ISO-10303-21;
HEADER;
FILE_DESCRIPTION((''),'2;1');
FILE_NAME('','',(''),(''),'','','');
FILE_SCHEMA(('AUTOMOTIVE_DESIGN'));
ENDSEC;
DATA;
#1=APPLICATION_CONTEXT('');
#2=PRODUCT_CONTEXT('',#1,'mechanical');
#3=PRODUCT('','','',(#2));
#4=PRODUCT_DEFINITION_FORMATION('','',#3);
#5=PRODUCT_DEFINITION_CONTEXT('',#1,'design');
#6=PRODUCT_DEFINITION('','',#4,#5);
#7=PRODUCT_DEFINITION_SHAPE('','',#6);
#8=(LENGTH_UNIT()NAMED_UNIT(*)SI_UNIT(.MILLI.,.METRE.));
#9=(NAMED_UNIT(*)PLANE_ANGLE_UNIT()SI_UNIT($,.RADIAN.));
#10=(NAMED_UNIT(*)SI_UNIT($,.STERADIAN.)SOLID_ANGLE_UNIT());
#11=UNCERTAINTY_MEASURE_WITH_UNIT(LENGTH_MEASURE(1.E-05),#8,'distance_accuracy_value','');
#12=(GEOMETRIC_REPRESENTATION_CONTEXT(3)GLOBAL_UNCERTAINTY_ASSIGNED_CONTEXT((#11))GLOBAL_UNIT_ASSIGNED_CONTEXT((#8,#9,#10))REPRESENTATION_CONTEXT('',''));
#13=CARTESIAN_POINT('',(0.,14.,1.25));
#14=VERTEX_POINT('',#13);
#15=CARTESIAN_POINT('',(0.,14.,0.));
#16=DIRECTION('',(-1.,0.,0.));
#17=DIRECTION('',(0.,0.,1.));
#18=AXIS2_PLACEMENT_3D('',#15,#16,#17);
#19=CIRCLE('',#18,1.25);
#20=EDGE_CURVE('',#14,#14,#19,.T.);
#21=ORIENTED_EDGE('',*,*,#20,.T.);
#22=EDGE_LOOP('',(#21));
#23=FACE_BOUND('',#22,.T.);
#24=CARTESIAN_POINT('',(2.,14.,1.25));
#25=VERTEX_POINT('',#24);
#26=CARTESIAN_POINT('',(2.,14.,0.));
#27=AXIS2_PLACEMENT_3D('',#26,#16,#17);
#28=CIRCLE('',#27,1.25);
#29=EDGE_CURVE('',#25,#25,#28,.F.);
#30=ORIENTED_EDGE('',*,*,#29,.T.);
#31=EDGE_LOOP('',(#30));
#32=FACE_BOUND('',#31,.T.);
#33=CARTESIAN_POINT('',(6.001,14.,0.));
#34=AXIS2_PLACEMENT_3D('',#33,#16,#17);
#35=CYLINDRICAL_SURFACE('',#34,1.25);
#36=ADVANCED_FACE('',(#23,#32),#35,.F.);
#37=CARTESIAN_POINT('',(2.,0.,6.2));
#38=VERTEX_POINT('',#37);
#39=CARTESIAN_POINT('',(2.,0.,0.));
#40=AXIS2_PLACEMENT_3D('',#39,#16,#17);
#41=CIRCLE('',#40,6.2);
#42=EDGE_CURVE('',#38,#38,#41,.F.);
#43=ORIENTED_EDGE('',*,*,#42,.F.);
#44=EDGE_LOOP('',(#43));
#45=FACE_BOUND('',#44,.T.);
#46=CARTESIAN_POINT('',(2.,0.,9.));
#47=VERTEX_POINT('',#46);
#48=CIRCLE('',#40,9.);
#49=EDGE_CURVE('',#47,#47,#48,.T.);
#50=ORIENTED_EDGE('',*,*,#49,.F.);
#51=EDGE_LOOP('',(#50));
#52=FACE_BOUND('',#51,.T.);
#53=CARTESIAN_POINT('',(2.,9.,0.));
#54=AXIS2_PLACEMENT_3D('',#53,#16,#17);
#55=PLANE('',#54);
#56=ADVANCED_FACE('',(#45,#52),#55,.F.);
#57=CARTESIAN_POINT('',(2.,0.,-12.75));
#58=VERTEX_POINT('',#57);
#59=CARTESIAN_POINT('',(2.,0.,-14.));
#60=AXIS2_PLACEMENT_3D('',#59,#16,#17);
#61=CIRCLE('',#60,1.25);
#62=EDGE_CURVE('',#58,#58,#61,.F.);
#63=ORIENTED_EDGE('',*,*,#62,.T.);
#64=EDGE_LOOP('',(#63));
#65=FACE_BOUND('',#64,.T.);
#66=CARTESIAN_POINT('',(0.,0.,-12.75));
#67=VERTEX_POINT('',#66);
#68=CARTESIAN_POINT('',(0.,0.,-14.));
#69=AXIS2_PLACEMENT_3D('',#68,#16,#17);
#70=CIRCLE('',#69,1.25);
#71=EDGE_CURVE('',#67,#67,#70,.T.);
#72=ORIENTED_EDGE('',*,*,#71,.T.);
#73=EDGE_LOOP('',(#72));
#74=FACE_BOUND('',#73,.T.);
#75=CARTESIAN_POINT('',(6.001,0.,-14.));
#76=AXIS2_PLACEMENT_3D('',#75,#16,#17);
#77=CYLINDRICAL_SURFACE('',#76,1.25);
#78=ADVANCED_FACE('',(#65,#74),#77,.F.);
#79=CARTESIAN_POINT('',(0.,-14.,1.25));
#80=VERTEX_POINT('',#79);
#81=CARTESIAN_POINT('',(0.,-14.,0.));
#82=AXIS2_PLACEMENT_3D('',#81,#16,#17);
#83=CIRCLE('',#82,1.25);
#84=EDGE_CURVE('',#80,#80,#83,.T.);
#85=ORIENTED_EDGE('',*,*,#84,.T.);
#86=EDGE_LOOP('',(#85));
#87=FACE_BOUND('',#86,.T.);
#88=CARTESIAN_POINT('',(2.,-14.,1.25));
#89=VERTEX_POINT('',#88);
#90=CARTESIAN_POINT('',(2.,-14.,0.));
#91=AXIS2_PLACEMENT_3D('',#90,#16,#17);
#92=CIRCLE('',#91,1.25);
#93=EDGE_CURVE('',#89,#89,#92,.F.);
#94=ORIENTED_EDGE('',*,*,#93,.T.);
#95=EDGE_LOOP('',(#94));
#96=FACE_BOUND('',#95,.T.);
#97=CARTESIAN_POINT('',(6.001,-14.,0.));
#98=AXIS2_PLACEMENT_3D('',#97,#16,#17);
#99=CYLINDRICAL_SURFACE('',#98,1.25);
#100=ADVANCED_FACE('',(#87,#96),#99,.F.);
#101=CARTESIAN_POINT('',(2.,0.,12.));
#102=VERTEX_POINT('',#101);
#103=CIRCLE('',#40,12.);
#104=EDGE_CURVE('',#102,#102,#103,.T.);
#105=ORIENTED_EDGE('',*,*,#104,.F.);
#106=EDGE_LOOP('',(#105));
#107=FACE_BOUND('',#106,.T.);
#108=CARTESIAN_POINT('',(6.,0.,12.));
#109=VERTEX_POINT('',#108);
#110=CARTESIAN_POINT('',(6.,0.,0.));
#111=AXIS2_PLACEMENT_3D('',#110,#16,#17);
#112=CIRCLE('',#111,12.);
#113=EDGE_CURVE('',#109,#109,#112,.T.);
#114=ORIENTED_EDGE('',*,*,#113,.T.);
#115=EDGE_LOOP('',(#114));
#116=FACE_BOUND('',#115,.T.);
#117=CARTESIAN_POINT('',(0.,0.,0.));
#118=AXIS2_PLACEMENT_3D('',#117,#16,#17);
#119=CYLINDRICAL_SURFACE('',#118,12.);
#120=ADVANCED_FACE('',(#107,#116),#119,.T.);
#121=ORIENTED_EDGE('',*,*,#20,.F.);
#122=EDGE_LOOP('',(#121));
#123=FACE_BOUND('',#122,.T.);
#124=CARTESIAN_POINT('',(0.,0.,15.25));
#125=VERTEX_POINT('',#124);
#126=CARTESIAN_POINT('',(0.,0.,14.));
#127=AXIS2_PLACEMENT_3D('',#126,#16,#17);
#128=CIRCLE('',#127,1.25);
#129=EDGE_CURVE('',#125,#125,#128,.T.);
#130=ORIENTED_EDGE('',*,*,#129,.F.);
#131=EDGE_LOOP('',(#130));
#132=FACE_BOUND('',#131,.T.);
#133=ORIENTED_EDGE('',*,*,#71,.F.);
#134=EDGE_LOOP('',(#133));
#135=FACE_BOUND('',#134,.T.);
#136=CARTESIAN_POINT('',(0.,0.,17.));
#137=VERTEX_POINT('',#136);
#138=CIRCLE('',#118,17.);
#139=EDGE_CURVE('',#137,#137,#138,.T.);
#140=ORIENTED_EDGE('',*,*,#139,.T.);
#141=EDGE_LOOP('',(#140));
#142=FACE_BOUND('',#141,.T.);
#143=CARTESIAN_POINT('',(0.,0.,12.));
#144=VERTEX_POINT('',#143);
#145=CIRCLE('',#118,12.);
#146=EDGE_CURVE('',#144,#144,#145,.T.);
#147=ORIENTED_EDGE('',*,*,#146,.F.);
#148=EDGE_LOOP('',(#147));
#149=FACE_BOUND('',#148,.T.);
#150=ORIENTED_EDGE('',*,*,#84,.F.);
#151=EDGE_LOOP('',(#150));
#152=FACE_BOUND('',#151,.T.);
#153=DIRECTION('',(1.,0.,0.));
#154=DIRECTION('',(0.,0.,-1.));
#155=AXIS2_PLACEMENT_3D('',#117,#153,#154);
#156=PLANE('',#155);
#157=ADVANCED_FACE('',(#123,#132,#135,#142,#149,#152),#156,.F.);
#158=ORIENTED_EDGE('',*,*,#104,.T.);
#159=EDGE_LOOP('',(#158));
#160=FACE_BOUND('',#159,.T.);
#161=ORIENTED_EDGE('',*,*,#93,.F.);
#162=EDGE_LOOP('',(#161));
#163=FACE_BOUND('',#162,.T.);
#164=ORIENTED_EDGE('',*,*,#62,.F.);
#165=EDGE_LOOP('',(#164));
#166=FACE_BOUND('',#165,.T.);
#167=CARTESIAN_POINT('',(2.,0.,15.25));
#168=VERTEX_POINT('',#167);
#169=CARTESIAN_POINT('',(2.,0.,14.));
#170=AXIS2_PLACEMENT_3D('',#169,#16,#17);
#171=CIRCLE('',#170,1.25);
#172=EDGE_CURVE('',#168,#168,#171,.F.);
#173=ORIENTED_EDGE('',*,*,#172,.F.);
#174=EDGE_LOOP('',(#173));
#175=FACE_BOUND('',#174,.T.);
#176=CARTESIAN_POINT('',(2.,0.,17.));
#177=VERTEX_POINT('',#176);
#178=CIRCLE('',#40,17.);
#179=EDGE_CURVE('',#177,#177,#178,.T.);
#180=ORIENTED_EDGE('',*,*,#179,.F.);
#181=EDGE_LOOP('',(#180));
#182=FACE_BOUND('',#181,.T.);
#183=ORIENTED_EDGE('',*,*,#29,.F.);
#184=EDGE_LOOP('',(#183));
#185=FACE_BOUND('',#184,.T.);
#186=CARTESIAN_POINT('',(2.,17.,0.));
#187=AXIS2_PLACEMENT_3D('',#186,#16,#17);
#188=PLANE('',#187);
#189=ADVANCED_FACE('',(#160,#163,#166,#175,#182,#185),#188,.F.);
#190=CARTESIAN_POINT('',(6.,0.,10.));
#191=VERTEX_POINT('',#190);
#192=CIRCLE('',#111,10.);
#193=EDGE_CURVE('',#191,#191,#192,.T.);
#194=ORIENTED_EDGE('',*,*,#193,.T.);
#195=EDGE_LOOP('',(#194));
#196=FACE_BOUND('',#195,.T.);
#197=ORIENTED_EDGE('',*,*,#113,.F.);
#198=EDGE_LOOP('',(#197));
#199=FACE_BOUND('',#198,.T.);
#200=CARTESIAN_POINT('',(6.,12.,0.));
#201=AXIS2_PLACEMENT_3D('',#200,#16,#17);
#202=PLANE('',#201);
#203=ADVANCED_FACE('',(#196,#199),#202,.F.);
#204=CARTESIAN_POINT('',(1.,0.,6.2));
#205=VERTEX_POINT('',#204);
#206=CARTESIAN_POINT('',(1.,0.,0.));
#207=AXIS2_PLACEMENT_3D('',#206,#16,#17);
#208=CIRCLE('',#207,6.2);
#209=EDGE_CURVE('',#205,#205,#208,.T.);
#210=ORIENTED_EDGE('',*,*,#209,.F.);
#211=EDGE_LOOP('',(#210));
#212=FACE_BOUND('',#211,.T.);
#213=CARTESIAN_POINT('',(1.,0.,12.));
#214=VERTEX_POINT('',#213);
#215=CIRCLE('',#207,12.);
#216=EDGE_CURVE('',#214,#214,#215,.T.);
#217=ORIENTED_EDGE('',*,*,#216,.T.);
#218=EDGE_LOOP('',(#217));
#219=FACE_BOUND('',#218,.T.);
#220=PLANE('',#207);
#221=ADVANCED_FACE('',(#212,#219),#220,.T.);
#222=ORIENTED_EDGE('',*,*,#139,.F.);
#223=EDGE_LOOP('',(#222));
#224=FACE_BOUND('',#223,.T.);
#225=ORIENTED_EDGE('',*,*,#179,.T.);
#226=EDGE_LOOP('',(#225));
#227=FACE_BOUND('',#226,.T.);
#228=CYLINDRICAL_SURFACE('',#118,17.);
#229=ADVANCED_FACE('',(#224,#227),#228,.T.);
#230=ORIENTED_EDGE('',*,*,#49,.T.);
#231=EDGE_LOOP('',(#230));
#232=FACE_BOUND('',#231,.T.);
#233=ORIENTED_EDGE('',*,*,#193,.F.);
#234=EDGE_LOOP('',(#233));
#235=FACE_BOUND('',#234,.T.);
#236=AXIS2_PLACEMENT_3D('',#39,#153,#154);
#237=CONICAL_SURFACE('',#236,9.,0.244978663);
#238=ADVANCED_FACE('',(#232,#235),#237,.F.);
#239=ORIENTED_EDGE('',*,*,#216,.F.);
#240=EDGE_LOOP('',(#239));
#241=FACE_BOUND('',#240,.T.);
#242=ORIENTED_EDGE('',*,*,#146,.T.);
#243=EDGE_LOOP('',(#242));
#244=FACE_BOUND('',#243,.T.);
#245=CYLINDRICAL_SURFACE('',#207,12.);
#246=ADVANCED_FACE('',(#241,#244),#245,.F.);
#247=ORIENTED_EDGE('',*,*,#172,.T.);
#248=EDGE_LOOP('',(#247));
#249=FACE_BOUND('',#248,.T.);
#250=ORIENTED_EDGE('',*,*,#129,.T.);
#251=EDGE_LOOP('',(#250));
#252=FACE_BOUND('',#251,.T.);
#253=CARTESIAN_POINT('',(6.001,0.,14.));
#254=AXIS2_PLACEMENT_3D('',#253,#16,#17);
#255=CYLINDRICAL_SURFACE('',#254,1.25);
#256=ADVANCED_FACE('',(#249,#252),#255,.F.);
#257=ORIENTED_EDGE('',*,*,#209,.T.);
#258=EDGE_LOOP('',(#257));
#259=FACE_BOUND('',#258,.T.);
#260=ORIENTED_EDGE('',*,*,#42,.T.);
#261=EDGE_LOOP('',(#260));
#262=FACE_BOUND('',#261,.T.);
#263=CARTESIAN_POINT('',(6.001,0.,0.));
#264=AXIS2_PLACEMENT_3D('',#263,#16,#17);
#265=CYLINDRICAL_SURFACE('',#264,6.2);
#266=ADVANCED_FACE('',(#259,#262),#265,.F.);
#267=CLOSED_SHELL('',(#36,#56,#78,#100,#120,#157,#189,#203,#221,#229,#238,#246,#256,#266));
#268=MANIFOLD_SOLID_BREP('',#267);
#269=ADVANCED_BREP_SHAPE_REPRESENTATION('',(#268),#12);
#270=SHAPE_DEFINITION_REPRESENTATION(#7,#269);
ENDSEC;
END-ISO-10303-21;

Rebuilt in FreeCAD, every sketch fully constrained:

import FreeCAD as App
import Part
import Sketcher

doc = App.newDocument("Part")
body = doc.addObject("PartDesign::Body", "Body")

# Sketch on XY plane
sketch1 = body.newObject("Sketcher::SketchObject", "Sketch")
sketch1.AttachmentSupport = (doc.getObject("XY_Plane"), [""])
sketch1.MapMode = "FlatFace"
sketch1.addGeometry(Part.LineSegment(App.Vector(0, 17, 0), App.Vector(0, 0, 0)), False)
sketch1.addGeometry(Part.LineSegment(App.Vector(0, 0, 0), App.Vector(2, 0, 0)), False)
sketch1.addGeometry(Part.LineSegment(App.Vector(2, 0, 0), App.Vector(2, 9, 0)), False)
sketch1.addGeometry(Part.LineSegment(App.Vector(2, 9, 0), App.Vector(6, 10, 0)), False)
sketch1.addGeometry(Part.LineSegment(App.Vector(6, 10, 0), App.Vector(6, 12, 0)), False)
sketch1.addGeometry(Part.LineSegment(App.Vector(6, 12, 0), App.Vector(2, 12, 0)), False)
sketch1.addGeometry(Part.LineSegment(App.Vector(2, 12, 0), App.Vector(2, 17, 0)), False)
sketch1.addGeometry(Part.LineSegment(App.Vector(2, 17, 0), App.Vector(0, 17, 0)), False)
sketch1.addConstraint(Sketcher.Constraint("Coincident", 0, 2, 1, 1))
sketch1.addConstraint(Sketcher.Constraint("Coincident", 1, 2, 2, 1))
sketch1.addConstraint(Sketcher.Constraint("Coincident", 2, 2, 3, 1))
sketch1.addConstraint(Sketcher.Constraint("Coincident", 3, 2, 4, 1))
sketch1.addConstraint(Sketcher.Constraint("Coincident", 4, 2, 5, 1))
sketch1.addConstraint(Sketcher.Constraint("Coincident", 5, 2, 6, 1))
sketch1.addConstraint(Sketcher.Constraint("Coincident", 6, 2, 7, 1))
sketch1.addConstraint(Sketcher.Constraint("Coincident", 7, 2, 0, 1))
sketch1.addConstraint(Sketcher.Constraint("Vertical", 0))
sketch1.addConstraint(Sketcher.Constraint("Horizontal", 1))
sketch1.addConstraint(Sketcher.Constraint("Vertical", 2))
sketch1.addConstraint(Sketcher.Constraint("Vertical", 4))
sketch1.addConstraint(Sketcher.Constraint("Horizontal", 5))
sketch1.addConstraint(Sketcher.Constraint("Vertical", 6))
sketch1.addConstraint(Sketcher.Constraint("Horizontal", 7))
sketch1.addConstraint(Sketcher.Constraint("Coincident", 0, 2, -1, 1))
sketch1.addConstraint(Sketcher.Constraint("Vertical", 2, 2, 5, 2))
sketch1.addConstraint(Sketcher.Constraint("Equal", 7, 4))
sketch1.addConstraint(Sketcher.Constraint("DistanceX", 1, 1, 1, 2, 2.0))
sketch1.addConstraint(Sketcher.Constraint("DistanceX", 5, 2, 5, 1, 4.0))
sketch1.addConstraint(Sketcher.Constraint("DistanceY", 0, 2, 0, 1, 17.0))
sketch1.addConstraint(Sketcher.Constraint("DistanceY", 2, 1, 2, 2, 9.0))
sketch1.addConstraint(Sketcher.Constraint("DistanceY", 6, 1, 6, 2, 5.0))
revolution = body.newObject("PartDesign::Revolution", "Revolution")
revolution.Profile = sketch1
revolution.ReferenceAxis = (sketch1, ["H_Axis"])
revolution.Angle = 360

# Sketch on YZ plane
sketch2 = body.newObject("Sketcher::SketchObject", "Sketch001")
sketch2.AttachmentSupport = (doc.getObject("YZ_Plane"), [""])
sketch2.MapMode = "FlatFace"
sketch2.addGeometry(Part.Circle(App.Vector(14, 0, 0), App.Vector(0, 0, 1), 1.2), False)
sketch2.addConstraint(Sketcher.Constraint("PointOnObject", 0, 3, -1))
sketch2.addConstraint(Sketcher.Constraint("Diameter", 0, 2.5))
sketch2.addConstraint(Sketcher.Constraint("DistanceX", -1, 1, 0, 3, 14.0))
pocket1 = body.newObject("PartDesign::Pocket", "Pocket")
pocket1.Profile = sketch2
pocket1.Type = "UpToFirst"
pocket1.Reversed = True

# Sketch on YZ plane
sketch3 = body.newObject("Sketcher::SketchObject", "Sketch002")
sketch3.AttachmentSupport = (doc.getObject("YZ_Plane"), [""])
sketch3.MapMode = "FlatFace"
sketch3.addGeometry(Part.Circle(App.Vector(0, 14, 0), App.Vector(0, 0, 1), 1.2), False)
sketch3.addConstraint(Sketcher.Constraint("PointOnObject", 0, 3, -2))
sketch3.addConstraint(Sketcher.Constraint("Diameter", 0, 2.5))
sketch3.addConstraint(Sketcher.Constraint("DistanceY", -1, 1, 0, 3, 14.0))
pocket2 = body.newObject("PartDesign::Pocket", "Pocket001")
pocket2.Profile = sketch3
pocket2.Type = "UpToFirst"
pocket2.Reversed = True

# Sketch on YZ plane
sketch4 = body.newObject("Sketcher::SketchObject", "Sketch003")
sketch4.AttachmentSupport = (doc.getObject("YZ_Plane"), [""])
sketch4.MapMode = "FlatFace"
sketch4.addGeometry(Part.Circle(App.Vector(-14, 0, 0), App.Vector(0, 0, 1), 1.2), False)
sketch4.addConstraint(Sketcher.Constraint("PointOnObject", 0, 3, -1))
sketch4.addConstraint(Sketcher.Constraint("Diameter", 0, 2.5))
sketch4.addConstraint(Sketcher.Constraint("DistanceX", 0, 3, -1, 1, 14.0))
pocket3 = body.newObject("PartDesign::Pocket", "Pocket002")
pocket3.Profile = sketch4
pocket3.Type = "UpToFirst"
pocket3.Reversed = True

# Sketch on YZ plane
sketch5 = body.newObject("Sketcher::SketchObject", "Sketch004")
sketch5.AttachmentSupport = (doc.getObject("YZ_Plane"), [""])
sketch5.MapMode = "FlatFace"
sketch5.addGeometry(Part.Circle(App.Vector(0, -14, 0), App.Vector(0, 0, 1), 1.2), False)
sketch5.addConstraint(Sketcher.Constraint("PointOnObject", 0, 3, -2))
sketch5.addConstraint(Sketcher.Constraint("Diameter", 0, 2.5))
sketch5.addConstraint(Sketcher.Constraint("DistanceY", 0, 3, -1, 1, 14.0))
pocket4 = body.newObject("PartDesign::Pocket", "Pocket003")
pocket4.Profile = sketch5
pocket4.Type = "UpToFirst"
pocket4.Reversed = True

# Sketch on YZ plane
sketch6 = body.newObject("Sketcher::SketchObject", "Sketch005")
sketch6.AttachmentSupport = (doc.getObject("YZ_Plane"), [""])
sketch6.MapMode = "FlatFace"
sketch6.addGeometry(Part.Circle(App.Vector(0, 0, 0), App.Vector(0, 0, 1), 12), False)
sketch6.addConstraint(Sketcher.Constraint("Coincident", 0, 3, -1, 1))
sketch6.addConstraint(Sketcher.Constraint("Diameter", 0, 24.0))
pocket5 = body.newObject("PartDesign::Pocket", "Pocket004")
pocket5.Profile = sketch6
pocket5.Length = 1
pocket5.Reversed = True

# Sketch on YZ plane
sketch7 = body.newObject("Sketcher::SketchObject", "Sketch006")
sketch7.AttachmentSupport = (doc.getObject("YZ_Plane"), [""])
sketch7.MapMode = "FlatFace"
sketch7.AttachmentOffset = App.Placement(App.Vector(0, 0, 1), App.Rotation())
sketch7.addGeometry(Part.Circle(App.Vector(0, 0, 0), App.Vector(0, 0, 1), 6), False)
sketch7.addConstraint(Sketcher.Constraint("Coincident", 0, 3, -1, 1))
sketch7.addConstraint(Sketcher.Constraint("Diameter", 0, 12.4))
pocket6 = body.newObject("PartDesign::Pocket", "Pocket005")
pocket6.Profile = sketch7
pocket6.Type = "UpToFirst"
pocket6.Reversed = True

doc.recompute()
